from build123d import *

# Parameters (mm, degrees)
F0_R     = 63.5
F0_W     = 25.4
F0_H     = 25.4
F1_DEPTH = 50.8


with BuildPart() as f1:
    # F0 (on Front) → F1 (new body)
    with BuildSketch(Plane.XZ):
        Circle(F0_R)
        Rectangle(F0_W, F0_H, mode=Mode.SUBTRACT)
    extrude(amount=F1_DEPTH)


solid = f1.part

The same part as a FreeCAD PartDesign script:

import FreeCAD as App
import Part
import Sketcher

V = App.Vector
Q = App.Units.Quantity


def add_polygon(sketch, points):
    """Adds a closed chain of lines whose ends are joined by coincident constraints."""
    first, n = sketch.GeometryCount, len(points)
    for a, b in zip(points, points[1:] + points[:1]):
        sketch.addGeometry(Part.LineSegment(App.Vector(*a, 0), App.Vector(*b, 0)), False)
    for i in range(n):
        sketch.addConstraint(Sketcher.Constraint("Coincident", first + i, 2, first + (i + 1) % n, 1))

doc = App.newDocument("Part")
body = doc.addObject("PartDesign::Body", "Body")

sketch1 = body.newObject("Sketcher::SketchObject", "Sketch")
sketch1.AttachmentSupport = (doc.getObject("XZ_Plane"), [""])
sketch1.MapMode = "FlatFace"
sketch1.addGeometry(Part.Circle(V(0, 0, 0), V(0, 0, 1), 64), False)
add_polygon(sketch1, [(13, -13), (-13, -13), (-13, 13), (13, 13)])
sketch1.addConstraint(Sketcher.Constraint("Horizontal", 1))
sketch1.addConstraint(Sketcher.Constraint("Vertical", 2))
sketch1.addConstraint(Sketcher.Constraint("Horizontal", 3))
sketch1.addConstraint(Sketcher.Constraint("Vertical", 4))
sketch1.addConstraint(Sketcher.Constraint("Coincident", 0, 3, -1, 1))
sketch1.addConstraint(Sketcher.Constraint("Symmetric", 1, 2, 3, 2, -1, 1))
sketch1.addConstraint(Sketcher.Constraint("Equal", 3, 2))
sketch1.addConstraint(Sketcher.Constraint("Diameter", 0, Q("5 in")))
sketch1.addConstraint(Sketcher.Constraint("DistanceX", 1, 2, 1, 1, Q("1 in")))
pad1 = body.newObject("PartDesign::Pad", "Pad")
pad1.Profile = sketch1
pad1.Length = Q("2 in")

doc.recompute()
